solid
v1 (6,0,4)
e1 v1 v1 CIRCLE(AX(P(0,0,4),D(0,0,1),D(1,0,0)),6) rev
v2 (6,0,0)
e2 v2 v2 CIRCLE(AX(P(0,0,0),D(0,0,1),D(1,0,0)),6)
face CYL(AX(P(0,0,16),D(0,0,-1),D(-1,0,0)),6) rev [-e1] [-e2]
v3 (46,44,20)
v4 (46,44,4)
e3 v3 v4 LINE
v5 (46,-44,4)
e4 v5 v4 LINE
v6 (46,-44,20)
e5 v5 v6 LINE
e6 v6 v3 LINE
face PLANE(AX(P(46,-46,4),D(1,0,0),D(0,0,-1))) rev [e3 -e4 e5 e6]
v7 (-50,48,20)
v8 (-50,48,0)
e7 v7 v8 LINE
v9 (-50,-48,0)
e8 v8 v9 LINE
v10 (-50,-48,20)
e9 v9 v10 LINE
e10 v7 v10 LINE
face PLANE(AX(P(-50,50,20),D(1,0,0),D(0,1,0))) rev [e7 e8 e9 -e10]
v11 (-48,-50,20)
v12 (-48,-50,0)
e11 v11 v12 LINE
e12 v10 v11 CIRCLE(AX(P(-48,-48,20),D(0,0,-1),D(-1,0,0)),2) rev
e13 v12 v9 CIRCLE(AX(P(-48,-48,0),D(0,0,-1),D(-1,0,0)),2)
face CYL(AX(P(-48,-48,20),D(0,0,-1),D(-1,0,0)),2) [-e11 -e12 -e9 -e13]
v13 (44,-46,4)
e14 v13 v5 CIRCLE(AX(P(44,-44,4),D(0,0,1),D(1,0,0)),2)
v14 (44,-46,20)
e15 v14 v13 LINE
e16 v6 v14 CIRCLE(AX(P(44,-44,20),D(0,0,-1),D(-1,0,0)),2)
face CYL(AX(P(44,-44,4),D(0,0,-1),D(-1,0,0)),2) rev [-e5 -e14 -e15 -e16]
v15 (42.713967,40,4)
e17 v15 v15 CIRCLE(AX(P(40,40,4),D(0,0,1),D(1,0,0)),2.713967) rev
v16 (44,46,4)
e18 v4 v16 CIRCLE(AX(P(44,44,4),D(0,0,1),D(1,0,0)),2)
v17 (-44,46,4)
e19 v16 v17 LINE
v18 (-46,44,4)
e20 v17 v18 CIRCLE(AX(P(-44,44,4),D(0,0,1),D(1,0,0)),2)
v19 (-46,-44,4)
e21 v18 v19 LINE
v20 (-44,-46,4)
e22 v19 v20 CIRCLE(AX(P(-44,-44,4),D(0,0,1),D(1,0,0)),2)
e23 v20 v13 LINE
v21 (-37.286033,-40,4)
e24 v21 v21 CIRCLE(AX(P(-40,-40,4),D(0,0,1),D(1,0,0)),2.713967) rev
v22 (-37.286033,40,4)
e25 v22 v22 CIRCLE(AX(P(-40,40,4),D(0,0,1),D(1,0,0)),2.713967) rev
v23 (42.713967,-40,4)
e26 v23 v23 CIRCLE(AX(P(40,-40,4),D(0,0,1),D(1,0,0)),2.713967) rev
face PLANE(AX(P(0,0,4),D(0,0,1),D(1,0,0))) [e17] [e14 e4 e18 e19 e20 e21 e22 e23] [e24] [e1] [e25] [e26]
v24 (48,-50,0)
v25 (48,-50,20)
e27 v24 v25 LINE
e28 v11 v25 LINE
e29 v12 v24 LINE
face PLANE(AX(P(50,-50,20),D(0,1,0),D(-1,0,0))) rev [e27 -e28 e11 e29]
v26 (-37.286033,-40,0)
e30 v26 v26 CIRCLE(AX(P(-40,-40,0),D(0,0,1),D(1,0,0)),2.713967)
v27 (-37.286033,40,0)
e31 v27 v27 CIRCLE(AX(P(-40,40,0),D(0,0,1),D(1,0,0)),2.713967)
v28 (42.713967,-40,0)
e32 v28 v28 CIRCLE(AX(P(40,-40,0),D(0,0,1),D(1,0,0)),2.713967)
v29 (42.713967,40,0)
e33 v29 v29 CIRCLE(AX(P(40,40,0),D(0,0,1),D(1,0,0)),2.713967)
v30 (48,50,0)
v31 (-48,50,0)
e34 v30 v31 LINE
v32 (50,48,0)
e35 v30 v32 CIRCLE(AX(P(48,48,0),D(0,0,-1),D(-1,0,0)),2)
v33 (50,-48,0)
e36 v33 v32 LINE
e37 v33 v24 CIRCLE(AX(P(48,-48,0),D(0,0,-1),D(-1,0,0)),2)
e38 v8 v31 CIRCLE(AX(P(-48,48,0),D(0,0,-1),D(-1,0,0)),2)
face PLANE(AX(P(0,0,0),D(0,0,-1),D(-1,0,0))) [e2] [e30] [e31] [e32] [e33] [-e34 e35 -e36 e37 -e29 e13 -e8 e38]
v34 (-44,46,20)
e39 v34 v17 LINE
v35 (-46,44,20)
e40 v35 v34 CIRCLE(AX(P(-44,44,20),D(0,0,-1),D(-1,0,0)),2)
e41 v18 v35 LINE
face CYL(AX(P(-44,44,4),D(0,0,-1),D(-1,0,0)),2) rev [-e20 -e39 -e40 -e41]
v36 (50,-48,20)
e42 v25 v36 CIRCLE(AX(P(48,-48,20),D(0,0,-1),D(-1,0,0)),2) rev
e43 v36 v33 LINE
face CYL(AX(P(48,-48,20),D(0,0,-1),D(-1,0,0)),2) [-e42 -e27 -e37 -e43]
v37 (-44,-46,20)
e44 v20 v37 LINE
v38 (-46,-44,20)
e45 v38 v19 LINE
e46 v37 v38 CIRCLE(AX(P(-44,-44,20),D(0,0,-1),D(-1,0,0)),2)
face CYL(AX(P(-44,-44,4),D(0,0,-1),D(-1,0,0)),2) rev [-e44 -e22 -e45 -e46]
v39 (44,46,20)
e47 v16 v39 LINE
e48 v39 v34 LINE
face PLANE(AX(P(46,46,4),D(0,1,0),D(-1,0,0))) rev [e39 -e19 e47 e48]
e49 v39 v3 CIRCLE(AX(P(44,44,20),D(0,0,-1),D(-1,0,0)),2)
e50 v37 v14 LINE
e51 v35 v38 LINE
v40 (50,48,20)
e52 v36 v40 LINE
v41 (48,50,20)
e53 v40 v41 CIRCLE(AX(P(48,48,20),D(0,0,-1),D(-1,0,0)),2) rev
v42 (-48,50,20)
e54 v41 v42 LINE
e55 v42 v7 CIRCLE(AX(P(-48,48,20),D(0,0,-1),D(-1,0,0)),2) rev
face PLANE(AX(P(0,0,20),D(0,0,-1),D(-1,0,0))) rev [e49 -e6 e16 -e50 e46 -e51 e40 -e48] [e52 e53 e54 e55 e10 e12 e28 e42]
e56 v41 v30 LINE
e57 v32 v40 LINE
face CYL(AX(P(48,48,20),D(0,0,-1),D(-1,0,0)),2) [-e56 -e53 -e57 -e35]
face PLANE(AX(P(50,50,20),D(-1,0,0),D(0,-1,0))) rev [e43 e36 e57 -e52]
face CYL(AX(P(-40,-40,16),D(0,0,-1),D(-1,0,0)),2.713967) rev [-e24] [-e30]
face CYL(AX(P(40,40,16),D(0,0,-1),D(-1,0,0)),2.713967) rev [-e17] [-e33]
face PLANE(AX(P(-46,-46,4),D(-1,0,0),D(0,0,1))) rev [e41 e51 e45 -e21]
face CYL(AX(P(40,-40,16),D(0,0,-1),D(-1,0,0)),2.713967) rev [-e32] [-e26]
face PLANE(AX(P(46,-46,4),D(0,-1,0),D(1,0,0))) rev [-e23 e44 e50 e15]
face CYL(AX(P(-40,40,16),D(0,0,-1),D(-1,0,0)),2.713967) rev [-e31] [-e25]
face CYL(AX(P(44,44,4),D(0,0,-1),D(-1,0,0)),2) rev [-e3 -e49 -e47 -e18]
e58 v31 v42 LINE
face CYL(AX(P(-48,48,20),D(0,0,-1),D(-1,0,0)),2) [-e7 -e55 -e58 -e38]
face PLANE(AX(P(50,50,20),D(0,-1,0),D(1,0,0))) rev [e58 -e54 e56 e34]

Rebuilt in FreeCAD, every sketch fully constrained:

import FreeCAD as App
import Part
import Sketcher
from FreeCAD import Vector


def edges_at(feature, points):
    """Names of the edges that pass closest to the given points."""
    edges = feature.Shape.Edges
    near = lambda p: min(range(len(edges)), key=lambda i: edges[i].distToShape(Part.Vertex(*p))[0])
    return sorted({f"Edge{near(p) + 1}" for p in points})


def add_polygon(sketch, points):
    """Adds a closed chain of lines whose ends are joined by coincident constraints."""
    first, n = sketch.GeometryCount, len(points)
    for a, b in zip(points, points[1:] + points[:1]):
        sketch.addGeometry(Part.LineSegment(App.Vector(*a, 0), App.Vector(*b, 0)), False)
    for i in range(n):
        sketch.addConstraint(Sketcher.Constraint("Coincident", first + i, 2, first + (i + 1) % n, 1))

doc = App.newDocument("Part")
params = doc.addObject("Spreadsheet::Sheet", "Params")
for row, (alias, value) in enumerate([
    ("sketch1_width", "100 mm"),
    ("pad1_length", "20 mm"),
    ("sketch2_width", "92 mm"),
    ("pocket1_length", "16 mm"),
    ("fillet_radius", "2 mm"),
    ("sketch3_diameter", "12 mm"),
    ("pocket2_length", "16 mm"),
], start=1):
    params.set(f"A{row}", alias)
    params.set(f"B{row}", "=" + value)
    params.setAlias(f"B{row}", alias)

body = doc.addObject("PartDesign::Body", "Body")

sketch1 = doc.addObject("Sketcher::SketchObject", "Sketch")
body.addObject(sketch1)
sketch1.AttachmentSupport = (doc.XY_Plane, [""])
sketch1.MapMode = "FlatFace"
add_polygon(sketch1, [(-50, 50), (-50, -50), (50, -50), (50, 50)])
sketch1.addConstraint([
    Sketcher.Constraint("Vertical", 0),
    Sketcher.Constraint("Horizontal", 1),
    Sketcher.Constraint("Vertical", 2),
    Sketcher.Constraint("Horizontal", 3),
    Sketcher.Constraint("Symmetric", 0, 2, 2, 2, -1, 1),
    Sketcher.Constraint("Equal", 3, 0),
    Sketcher.Constraint("DistanceX", 1, 1, 1, 2, 100.0),
])
sketch1.setExpression("Constraints[10]", "Params.sketch1_width")
pad1 = doc.addObject("PartDesign::Pad", "Pad")
body.addObject(pad1)
pad1.Profile = sketch1
pad1.setExpression("Length", "Params.pad1_length")

sketch2 = doc.addObject("Sketcher::SketchObject", "Sketch001")
body.addObject(sketch2)
sketch2.AttachmentSupport = (doc.XY_Plane, [""])
sketch2.MapMode = "FlatFace"
sketch2.AttachmentOffset = App.Placement(Vector(0, 0, 20), App.Rotation())
add_polygon(sketch2, [(-46, 46), (-46, -46), (46, -46), (46, 46)])
sketch2.addConstraint([
    Sketcher.Constraint("Vertical", 0),
    Sketcher.Constraint("Horizontal", 1),
    Sketcher.Constraint("Vertical", 2),
    Sketcher.Constraint("Horizontal", 3),
    Sketcher.Constraint("Symmetric", 0, 2, 2, 2, -1, 1),
    Sketcher.Constraint("Equal", 3, 0),
    Sketcher.Constraint("DistanceX", 1, 1, 1, 2, 92.0),
])
sketch2.setExpression("Constraints[10]", "Params.sketch2_width")
pocket1 = doc.addObject("PartDesign::Pocket", "Pocket")
body.addObject(pocket1)
pocket1.Profile = sketch2
pocket1.setExpression("Length", "Params.pocket1_length")
doc.recompute()

fillet = doc.addObject("PartDesign::Fillet", "Fillet")
body.addObject(fillet)
fillet.Base = (pocket1, edges_at(pocket1, [
    (-46, -46, 12),
    (-46, 46, 12),
    (46, 46, 12),
    (46, -46, 12),
    (-50, 50, 10),
    (50, 50, 10),
    (50, -50, 10),
    (-50, -50, 10),
]))
fillet.setExpression("Radius", "Params.fillet_radius")

sketch3 = doc.addObject("Sketcher::SketchObject", "Sketch002")
body.addObject(sketch3)
sketch3.AttachmentSupport = (doc.XY_Plane, [""])
sketch3.MapMode = "FlatFace"
sketch3.addGeometry([
    Part.Circle(Vector(0, 0, 0), Vector(0, 0, 1), 6),
    Part.Circle(Vector(-40, 40, 0), Vector(0, 0, 1), 2.7),
    Part.Circle(Vector(40, 40, 0), Vector(0, 0, 1), 2.7),
    Part.Circle(Vector(40, -40, 0), Vector(0, 0, 1), 2.7),
    Part.Circle(Vector(-40, -40, 0), Vector(0, 0, 1), 2.7),
], False)
sketch3.addConstraint([
    Sketcher.Constraint("Coincident", 0, 3, -1, 1),
    Sketcher.Constraint("Equal", 1, 2),
    Sketcher.Constraint("Equal", 2, 3),
    Sketcher.Constraint("Equal", 3, 4),
    Sketcher.Constraint("Symmetric", 1, 3, 3, 3, -1, 1),
    Sketcher.Constraint("Symmetric", 2, 3, 4, 3, -1, 1),
    Sketcher.Constraint("Symmetric", 1, 3, 2, 3, -2),
    Sketcher.Constraint("Diameter", 0, 12.0),
    Sketcher.Constraint("DistanceX", 1, 3, -1, 1, 40.0),
    Sketcher.Constraint("DistanceY", -1, 1, 1, 3, 40.0),
    Sketcher.Constraint("Diameter", 1, 5.427934),
])
sketch3.setExpression("Constraints[7]", "Params.sketch3_diameter")
pocket2 = doc.addObject("PartDesign::Pocket", "Pocket001")
body.addObject(pocket2)
pocket2.Profile = sketch3
pocket2.setExpression("Length", "Params.pocket2_length")
pocket2.Reversed = True

doc.recompute()
